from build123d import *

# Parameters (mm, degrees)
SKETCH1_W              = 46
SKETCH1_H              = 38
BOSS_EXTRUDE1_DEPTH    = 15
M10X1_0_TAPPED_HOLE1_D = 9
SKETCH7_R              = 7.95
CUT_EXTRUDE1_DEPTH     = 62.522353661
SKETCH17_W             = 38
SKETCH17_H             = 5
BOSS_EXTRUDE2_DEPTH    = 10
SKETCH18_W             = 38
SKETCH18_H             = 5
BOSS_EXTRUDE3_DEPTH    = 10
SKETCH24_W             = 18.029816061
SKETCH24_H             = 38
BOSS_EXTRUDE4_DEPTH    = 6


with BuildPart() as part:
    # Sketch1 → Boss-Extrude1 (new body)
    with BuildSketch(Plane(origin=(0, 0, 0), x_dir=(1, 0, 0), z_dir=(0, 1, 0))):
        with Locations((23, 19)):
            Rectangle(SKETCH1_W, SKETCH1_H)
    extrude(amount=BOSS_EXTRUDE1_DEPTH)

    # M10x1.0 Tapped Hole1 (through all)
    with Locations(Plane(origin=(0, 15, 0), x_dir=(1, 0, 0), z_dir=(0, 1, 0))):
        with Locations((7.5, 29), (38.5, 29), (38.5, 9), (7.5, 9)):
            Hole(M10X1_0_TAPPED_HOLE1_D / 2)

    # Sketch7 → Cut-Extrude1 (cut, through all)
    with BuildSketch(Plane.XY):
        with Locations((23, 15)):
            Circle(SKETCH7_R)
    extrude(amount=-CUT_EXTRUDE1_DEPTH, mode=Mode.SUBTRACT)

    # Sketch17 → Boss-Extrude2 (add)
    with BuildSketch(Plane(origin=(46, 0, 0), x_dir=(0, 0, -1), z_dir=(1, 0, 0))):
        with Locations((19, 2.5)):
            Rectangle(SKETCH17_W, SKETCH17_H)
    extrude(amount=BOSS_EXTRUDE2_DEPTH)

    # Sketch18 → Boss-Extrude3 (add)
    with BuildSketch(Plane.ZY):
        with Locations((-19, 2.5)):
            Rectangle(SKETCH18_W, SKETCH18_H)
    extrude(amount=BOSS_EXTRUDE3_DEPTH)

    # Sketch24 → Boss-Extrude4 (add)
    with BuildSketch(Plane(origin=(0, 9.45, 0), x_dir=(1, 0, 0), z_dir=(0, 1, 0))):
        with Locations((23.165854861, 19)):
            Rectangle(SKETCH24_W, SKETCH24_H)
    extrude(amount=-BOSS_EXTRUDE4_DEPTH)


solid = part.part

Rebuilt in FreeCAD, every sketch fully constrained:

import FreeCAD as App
import Part
import Sketcher

V = App.Vector


def add_polygon(sketch, points):
    """Adds a closed chain of lines whose ends are joined by coincident constraints."""
    first, n = sketch.GeometryCount, len(points)
    for a, b in zip(points, points[1:] + points[:1]):
        sketch.addGeometry(Part.LineSegment(App.Vector(*a, 0), App.Vector(*b, 0)), False)
    for i in range(n):
        sketch.addConstraint(Sketcher.Constraint("Coincident", first + i, 2, first + (i + 1) % n, 1))

doc = App.newDocument("Part")
body = doc.addObject("PartDesign::Body", "Body")

# Sketch on XZ plane
sketch1 = doc.addObject("Sketcher::SketchObject", "Sketch")
body.addObject(sketch1)
sketch1.AttachmentSupport = (doc.XZ_Plane, [""])
sketch1.MapMode = "FlatFace"
add_polygon(sketch1, [(0, -38), (0, 0), (46, 0), (46, -38)])  # lines 0-3
sketch1.addConstraint([
    Sketcher.Constraint("Vertical", 0),
    Sketcher.Constraint("Horizontal", 1),
    Sketcher.Constraint("Vertical", 2),
    Sketcher.Constraint("Horizontal", 3),
    Sketcher.Constraint("Coincident", 0, 2, -1, 1),
    Sketcher.Constraint("DistanceX", 1, 1, 1, 2, 46.0),
    Sketcher.Constraint("DistanceY", 0, 1, 0, 2, 38.0),
])
pad1 = doc.addObject("PartDesign::Pad", "Pad")
body.addObject(pad1)
pad1.Profile = sketch1
pad1.Length = 15
pad1.Reversed = True

# Sketch on XZ plane
sketch2 = doc.addObject("Sketcher::SketchObject", "Sketch001")
body.addObject(sketch2)
sketch2.AttachmentSupport = (doc.XZ_Plane, [""])
sketch2.MapMode = "FlatFace"
sketch2.AttachmentOffset = App.Placement(V(0, 0, -15), App.Rotation())
sketch2.addGeometry([
    Part.Circle(V(7.5, -29, 0), V(0, 0, 1), 4.5),
    Part.Circle(V(38.5, -29, 0), V(0, 0, 1), 4.5),
    Part.Circle(V(38.5, -9, 0), V(0, 0, 1), 4.5),
    Part.Circle(V(7.5, -9, 0), V(0, 0, 1), 4.5),
], False)
sketch2.addConstraint([
    Sketcher.Constraint("Equal", 0, 1),
    Sketcher.Constraint("Equal", 1, 2),
    Sketcher.Constraint("Equal", 2, 3),
    Sketcher.Constraint("Horizontal", 0, 3, 1, 3),
    Sketcher.Constraint("Horizontal", 2, 3, 3, 3),
    Sketcher.Constraint("Vertical", 1, 3, 2, 3),
    Sketcher.Constraint("Vertical", 0, 3, 3, 3),
    Sketcher.Constraint("Diameter", 0, 9.0),
    Sketcher.Constraint("DistanceY", 0, 3, -1, 1, 29.0),
    Sketcher.Constraint("DistanceY", 2, 3, -1, 1, 9.0),
    Sketcher.Constraint("DistanceX", 0, 3, 1, 3, 31.0),
    Sketcher.Constraint("DistanceX", -1, 1, 0, 3, 7.5),
])
doc.recompute()
hole = doc.addObject("PartDesign::Hole", "Hole")
body.addObject(hole)
hole.Profile = sketch2
hole.ThreadType = "None"
hole.Diameter = 9
hole.DepthType = "ThroughAll"
hole.Reversed = True

# Sketch on XY plane
sketch3 = doc.addObject("Sketcher::SketchObject", "Sketch002")
body.addObject(sketch3)
sketch3.AttachmentSupport = (doc.XY_Plane, [""])
sketch3.MapMode = "FlatFace"
sketch3.addGeometry(Part.Circle(V(23, 15, 0), V(0, 0, 1), 8), False)
sketch3.addConstraint([
    Sketcher.Constraint("Diameter", 0, 15.9),
    Sketcher.Constraint("DistanceX", -1, 1, 0, 3, 23.0),
    Sketcher.Constraint("DistanceY", -1, 1, 0, 3, 15.0),
])
pocket1 = doc.addObject("PartDesign::Pocket", "Pocket")
body.addObject(pocket1)
pocket1.Profile = sketch3
pocket1.Type = "ThroughAll"

# Sketch on YZ plane
sketch4 = doc.addObject("Sketcher::SketchObject", "Sketch003")
body.addObject(sketch4)
sketch4.AttachmentSupport = (doc.YZ_Plane, [""])
sketch4.MapMode = "FlatFace"
sketch4.AttachmentOffset = App.Placement(V(0, 0, 46), App.Rotation())
add_polygon(sketch4, [(5, 0), (0, 0), (0, -38), (5, -38)])  # lines 0-3
sketch4.addConstraint([
    Sketcher.Constraint("Horizontal", 0),
    Sketcher.Constraint("Vertical", 1),
    Sketcher.Constraint("Horizontal", 2),
    Sketcher.Constraint("Vertical", 3),
    Sketcher.Constraint("Coincident", 0, 2, -1, 1),
    Sketcher.Constraint("DistanceX", 0, 2, 0, 1, 5.0),
    Sketcher.Constraint("DistanceY", 1, 2, 1, 1, 38.0),
])
pad2 = doc.addObject("PartDesign::Pad", "Pad001")
body.addObject(pad2)
pad2.Profile = sketch4
pad2.Length = 10

# Sketch on YZ plane
sketch5 = doc.addObject("Sketcher::SketchObject", "Sketch004")
body.addObject(sketch5)
sketch5.AttachmentSupport = (doc.YZ_Plane, [""])
sketch5.MapMode = "FlatFace"
add_polygon(sketch5, [(5, -38), (0, -38), (0, 0), (5, 0)])  # lines 0-3
sketch5.addConstraint([
    Sketcher.Constraint("Horizontal", 0),
    Sketcher.Constraint("Vertical", 1),
    Sketcher.Constraint("Horizontal", 2),
    Sketcher.Constraint("Vertical", 3),
    Sketcher.Constraint("Coincident", 1, 2, -1, 1),
    Sketcher.Constraint("DistanceX", 0, 2, 0, 1, 5.0),
    Sketcher.Constraint("DistanceY", 1, 1, 1, 2, 38.0),
])
pad3 = doc.addObject("PartDesign::Pad", "Pad002")
body.addObject(pad3)
pad3.Profile = sketch5
pad3.Length = 10
pad3.Reversed = True

# Sketch on XZ plane
sketch6 = doc.addObject("Sketcher::SketchObject", "Sketch005")
body.addObject(sketch6)
sketch6.AttachmentSupport = (doc.XZ_Plane, [""])
sketch6.MapMode = "FlatFace"
sketch6.AttachmentOffset = App.Placement(V(0, 0, -9.45), App.Rotation())
add_polygon(sketch6, [(14, -38), (14, 0), (32, 0), (32, -38)])  # lines 0-3
sketch6.addConstraint([
    Sketcher.Constraint("Vertical", 0),
    Sketcher.Constraint("Horizontal", 1),
    Sketcher.Constraint("Vertical", 2),
    Sketcher.Constraint("Horizontal", 3),
    Sketcher.Constraint("PointOnObject", 0, 2, -1),
    Sketcher.Constraint("DistanceY", 0, 1, 0, 2, 38.0),
    Sketcher.Constraint("DistanceX", 1, 1, 1, 2, 18.029816),
    Sketcher.Constraint("DistanceX", -1, 1, 0, 2, 14.150947),
])
pad4 = doc.addObject("PartDesign::Pad", "Pad003")
body.addObject(pad4)
pad4.Profile = sketch6
pad4.Length = 6

doc.recompute()
